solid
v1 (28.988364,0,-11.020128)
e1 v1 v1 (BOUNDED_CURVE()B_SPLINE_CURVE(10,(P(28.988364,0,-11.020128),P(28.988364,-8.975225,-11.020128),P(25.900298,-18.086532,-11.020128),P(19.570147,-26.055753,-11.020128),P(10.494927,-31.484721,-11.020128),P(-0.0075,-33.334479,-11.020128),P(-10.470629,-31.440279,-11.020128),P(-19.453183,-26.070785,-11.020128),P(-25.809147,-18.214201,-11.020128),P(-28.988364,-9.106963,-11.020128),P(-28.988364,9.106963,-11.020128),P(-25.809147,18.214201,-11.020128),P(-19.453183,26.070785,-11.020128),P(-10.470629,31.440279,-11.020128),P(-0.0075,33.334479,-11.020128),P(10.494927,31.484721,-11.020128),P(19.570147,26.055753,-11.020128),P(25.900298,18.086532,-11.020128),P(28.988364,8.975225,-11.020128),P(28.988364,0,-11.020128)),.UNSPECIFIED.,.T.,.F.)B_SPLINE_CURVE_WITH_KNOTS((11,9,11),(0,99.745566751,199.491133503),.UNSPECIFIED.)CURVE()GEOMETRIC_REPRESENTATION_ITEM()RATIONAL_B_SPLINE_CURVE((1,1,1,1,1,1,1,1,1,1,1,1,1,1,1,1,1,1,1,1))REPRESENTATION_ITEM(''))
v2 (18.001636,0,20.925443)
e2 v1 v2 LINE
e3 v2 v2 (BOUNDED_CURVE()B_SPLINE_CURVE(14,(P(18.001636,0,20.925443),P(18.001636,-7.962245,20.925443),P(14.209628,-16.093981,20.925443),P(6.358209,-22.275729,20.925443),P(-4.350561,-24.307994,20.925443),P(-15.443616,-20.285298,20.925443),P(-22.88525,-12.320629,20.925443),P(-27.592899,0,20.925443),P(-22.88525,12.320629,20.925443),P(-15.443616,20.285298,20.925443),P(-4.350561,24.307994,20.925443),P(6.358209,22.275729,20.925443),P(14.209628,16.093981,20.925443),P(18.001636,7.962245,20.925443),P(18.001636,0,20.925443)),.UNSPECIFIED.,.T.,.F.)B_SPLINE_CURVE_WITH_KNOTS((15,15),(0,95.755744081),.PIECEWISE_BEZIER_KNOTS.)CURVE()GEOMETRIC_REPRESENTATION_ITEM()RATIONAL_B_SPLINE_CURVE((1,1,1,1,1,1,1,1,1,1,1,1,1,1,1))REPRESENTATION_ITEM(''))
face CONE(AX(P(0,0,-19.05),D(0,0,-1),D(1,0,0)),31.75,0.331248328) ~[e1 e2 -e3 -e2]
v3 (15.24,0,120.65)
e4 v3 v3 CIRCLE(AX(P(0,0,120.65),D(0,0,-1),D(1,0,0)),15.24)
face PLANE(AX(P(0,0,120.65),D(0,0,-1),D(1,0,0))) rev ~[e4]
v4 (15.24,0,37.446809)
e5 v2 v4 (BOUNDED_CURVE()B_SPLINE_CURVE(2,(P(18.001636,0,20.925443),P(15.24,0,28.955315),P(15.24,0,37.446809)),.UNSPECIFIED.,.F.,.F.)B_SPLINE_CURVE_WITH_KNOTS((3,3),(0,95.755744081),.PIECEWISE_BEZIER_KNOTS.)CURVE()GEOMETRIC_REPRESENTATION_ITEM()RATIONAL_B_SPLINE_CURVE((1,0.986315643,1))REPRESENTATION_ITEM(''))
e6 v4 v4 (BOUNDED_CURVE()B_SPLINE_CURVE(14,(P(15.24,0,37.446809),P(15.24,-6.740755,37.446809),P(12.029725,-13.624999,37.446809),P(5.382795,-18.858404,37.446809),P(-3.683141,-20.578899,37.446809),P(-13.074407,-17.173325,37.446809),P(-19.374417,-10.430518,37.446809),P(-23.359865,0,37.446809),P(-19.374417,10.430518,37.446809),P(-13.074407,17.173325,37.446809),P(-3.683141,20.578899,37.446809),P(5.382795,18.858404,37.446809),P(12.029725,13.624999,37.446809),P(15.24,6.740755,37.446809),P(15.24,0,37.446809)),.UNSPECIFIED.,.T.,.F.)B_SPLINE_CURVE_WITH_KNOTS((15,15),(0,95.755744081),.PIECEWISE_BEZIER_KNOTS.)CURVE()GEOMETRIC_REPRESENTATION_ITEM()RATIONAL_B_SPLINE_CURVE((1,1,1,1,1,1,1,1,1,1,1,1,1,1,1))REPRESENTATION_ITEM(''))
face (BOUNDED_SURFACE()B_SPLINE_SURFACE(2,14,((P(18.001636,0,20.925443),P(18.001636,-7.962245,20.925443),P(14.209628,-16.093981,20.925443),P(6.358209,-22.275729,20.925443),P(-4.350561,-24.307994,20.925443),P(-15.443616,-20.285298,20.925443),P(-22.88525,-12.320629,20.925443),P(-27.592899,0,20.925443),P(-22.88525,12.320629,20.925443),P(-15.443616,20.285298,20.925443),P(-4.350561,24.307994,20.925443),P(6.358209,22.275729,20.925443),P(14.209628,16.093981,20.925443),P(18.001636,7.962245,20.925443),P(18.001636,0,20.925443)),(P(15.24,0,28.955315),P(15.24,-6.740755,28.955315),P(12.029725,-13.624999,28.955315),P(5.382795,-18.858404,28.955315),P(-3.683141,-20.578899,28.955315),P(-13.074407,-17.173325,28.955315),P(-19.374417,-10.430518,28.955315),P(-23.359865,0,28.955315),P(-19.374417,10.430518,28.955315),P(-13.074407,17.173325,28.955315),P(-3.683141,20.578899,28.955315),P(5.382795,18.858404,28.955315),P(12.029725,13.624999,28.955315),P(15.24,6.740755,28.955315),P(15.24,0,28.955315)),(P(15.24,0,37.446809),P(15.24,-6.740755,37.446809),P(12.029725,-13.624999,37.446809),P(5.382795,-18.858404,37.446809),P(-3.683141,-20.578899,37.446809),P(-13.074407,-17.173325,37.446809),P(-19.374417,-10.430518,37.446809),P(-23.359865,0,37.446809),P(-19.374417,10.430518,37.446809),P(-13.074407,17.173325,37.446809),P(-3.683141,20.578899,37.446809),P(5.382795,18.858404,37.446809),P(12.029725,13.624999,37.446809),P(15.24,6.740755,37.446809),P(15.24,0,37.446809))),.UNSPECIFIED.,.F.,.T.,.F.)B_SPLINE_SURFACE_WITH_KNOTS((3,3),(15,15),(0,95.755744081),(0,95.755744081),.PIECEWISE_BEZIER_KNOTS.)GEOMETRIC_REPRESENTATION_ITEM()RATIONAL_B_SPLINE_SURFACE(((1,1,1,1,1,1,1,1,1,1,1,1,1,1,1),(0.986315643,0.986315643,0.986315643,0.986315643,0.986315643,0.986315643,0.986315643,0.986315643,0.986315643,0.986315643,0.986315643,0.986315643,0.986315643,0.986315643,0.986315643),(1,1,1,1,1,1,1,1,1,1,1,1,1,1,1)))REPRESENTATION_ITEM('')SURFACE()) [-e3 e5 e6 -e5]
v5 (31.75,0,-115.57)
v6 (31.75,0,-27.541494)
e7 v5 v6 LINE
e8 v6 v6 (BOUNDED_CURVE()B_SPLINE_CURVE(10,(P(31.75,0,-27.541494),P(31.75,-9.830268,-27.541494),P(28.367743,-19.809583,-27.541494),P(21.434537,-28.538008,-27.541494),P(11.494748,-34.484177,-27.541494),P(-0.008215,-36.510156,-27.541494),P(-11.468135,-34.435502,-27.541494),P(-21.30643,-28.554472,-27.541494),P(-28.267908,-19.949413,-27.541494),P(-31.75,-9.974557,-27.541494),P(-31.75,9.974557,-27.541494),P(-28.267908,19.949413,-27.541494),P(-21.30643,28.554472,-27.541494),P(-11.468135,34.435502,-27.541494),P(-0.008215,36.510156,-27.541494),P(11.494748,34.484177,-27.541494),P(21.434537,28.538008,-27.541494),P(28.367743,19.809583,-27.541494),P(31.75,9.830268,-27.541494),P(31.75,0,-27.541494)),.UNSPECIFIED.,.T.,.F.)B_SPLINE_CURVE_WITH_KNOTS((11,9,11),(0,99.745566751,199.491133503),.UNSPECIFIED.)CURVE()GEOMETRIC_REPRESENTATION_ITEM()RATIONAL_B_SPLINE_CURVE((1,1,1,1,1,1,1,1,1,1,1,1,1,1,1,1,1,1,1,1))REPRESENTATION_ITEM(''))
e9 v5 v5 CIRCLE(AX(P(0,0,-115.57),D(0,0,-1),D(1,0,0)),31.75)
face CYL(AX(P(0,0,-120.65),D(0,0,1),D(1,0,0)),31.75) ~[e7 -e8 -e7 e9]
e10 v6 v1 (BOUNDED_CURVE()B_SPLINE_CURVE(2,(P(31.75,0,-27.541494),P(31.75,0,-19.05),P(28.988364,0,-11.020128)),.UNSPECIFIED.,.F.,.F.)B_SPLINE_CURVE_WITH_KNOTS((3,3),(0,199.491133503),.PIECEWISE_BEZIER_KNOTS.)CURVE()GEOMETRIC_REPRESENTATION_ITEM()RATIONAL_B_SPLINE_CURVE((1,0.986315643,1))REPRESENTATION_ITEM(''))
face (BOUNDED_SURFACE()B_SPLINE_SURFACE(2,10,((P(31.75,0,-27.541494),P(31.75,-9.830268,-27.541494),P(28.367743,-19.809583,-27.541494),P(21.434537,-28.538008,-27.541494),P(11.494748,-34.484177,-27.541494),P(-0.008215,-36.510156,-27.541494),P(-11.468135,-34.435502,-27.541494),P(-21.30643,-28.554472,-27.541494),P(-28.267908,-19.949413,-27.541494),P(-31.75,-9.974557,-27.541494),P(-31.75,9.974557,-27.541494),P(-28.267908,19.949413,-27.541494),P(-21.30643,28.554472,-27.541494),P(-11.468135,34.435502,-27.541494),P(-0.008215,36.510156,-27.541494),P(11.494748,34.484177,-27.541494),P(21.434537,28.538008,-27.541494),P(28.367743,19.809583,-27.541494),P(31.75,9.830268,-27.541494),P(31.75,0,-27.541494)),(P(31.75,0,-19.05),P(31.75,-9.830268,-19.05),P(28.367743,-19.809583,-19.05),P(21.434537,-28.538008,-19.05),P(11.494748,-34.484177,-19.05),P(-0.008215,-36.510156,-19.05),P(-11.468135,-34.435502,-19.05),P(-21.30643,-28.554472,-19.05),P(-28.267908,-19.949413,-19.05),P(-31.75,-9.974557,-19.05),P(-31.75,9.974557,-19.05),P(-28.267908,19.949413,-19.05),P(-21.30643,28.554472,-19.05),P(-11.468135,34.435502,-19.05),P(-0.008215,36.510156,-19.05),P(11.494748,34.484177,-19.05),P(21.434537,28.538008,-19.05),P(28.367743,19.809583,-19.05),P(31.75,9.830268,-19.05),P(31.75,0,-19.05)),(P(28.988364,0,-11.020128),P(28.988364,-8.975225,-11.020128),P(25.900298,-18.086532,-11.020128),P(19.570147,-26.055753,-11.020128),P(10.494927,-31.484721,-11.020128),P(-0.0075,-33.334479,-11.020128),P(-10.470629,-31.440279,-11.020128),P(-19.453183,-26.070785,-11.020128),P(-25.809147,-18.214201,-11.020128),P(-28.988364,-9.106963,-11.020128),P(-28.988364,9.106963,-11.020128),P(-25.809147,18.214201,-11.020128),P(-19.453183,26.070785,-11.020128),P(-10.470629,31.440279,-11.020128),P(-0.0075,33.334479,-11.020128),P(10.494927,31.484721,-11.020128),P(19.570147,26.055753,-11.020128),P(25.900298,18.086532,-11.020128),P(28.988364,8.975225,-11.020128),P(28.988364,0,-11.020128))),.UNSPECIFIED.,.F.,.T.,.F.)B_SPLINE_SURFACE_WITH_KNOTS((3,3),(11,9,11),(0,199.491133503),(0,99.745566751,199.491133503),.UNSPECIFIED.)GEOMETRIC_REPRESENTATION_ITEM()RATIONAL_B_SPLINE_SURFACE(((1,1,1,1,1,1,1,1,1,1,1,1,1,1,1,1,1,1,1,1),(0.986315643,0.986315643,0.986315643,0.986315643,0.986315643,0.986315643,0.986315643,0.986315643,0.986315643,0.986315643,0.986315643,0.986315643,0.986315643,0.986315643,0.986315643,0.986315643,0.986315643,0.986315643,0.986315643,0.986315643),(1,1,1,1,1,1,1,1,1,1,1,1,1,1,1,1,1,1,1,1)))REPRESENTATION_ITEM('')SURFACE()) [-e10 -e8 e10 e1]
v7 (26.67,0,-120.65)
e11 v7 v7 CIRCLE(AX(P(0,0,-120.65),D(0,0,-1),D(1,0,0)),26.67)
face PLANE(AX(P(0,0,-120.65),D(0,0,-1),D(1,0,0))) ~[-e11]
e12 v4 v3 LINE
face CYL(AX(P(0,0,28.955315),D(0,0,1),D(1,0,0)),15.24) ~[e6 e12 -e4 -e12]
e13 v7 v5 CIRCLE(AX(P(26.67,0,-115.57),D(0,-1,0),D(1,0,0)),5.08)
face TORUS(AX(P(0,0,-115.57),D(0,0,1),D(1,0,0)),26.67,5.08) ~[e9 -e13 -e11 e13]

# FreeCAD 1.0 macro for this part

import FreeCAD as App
import Part
import Sketcher
from FreeCAD import Vector
Q = App.Units.Quantity


def edges_at(feature, points):
    """Names of the edges that pass closest to the given points."""
    edges = feature.Shape.Edges
    near = lambda p: min(range(len(edges)), key=lambda i: edges[i].distToShape(Part.Vertex(*p))[0])
    return sorted({f"Edge{near(p) + 1}" for p in points})


def add_polygon(sketch, points):
    """Adds a closed chain of lines whose ends are joined by coincident constraints."""
    first, n = sketch.GeometryCount, len(points)
    for a, b in zip(points, points[1:] + points[:1]):
        sketch.addGeometry(Part.LineSegment(App.Vector(*a, 0), App.Vector(*b, 0)), False)
    for i in range(n):
        sketch.addConstraint(Sketcher.Constraint("Coincident", first + i, 2, first + (i + 1) % n, 1))

doc = App.newDocument("Part")
body = doc.addObject("PartDesign::Body", "Body")

# Sketch on XZ plane
sketch1 = body.newObject("Sketcher::SketchObject", "Sketch")
sketch1.AttachmentSupport = (doc.getObject("XZ_Plane"), [""])
sketch1.MapMode = "FlatFace"
add_polygon(sketch1, [(15.24, 120.65), (0, 120.65), (0, -120.65), (31.75, -120.65), (31.75, -19.05), (15.24, 28.955315)])  # lines 0-5
sketch1.addConstraint(Sketcher.Constraint("Horizontal", 0))
sketch1.addConstraint(Sketcher.Constraint("Vertical", 1))
sketch1.addConstraint(Sketcher.Constraint("Horizontal", 2))
sketch1.addConstraint(Sketcher.Constraint("Vertical", 3))
sketch1.addConstraint(Sketcher.Constraint("Vertical", 5))
sketch1.addConstraint(Sketcher.Constraint("Symmetric", 0, 2, 1, 2, -1, 1))
sketch1.addConstraint(Sketcher.Constraint("DistanceY", 3, 1, 3, 2, Q("4 in")))
sketch1.addConstraint(Sketcher.Constraint("DistanceX", 0, 2, 0, 1, Q("0.6 in")))
sketch1.addConstraint(Sketcher.Constraint("DistanceY", 1, 2, 1, 1, Q("9.5 in")))
sketch1.addConstraint(Sketcher.Constraint("DistanceX", 2, 1, 2, 2, Q("1.25 in")))
sketch1.addConstraint(Sketcher.Constraint("Distance", 4, Q("50.765051 mm")))
revolution = body.newObject("PartDesign::Revolution", "Revolution")
revolution.Profile = sketch1
revolution.ReferenceAxis = (sketch1, ["V_Axis"])
revolution.Angle = 360
doc.recompute()

fillet = body.newObject("PartDesign::Fillet", "Fillet")
fillet.Base = (revolution, edges_at(revolution, [(-31.75, 0, -120.65)]))
fillet.Radius = Q("0.2 in")
doc.recompute()

fillet2 = body.newObject("PartDesign::Fillet", "Fillet001")
fillet2.Base = (fillet, edges_at(fillet, [(-31.75, 0, -19.05), (-15.24, 0, 28.955)]))
fillet2.Radius = Q("2 in")

doc.recompute()
